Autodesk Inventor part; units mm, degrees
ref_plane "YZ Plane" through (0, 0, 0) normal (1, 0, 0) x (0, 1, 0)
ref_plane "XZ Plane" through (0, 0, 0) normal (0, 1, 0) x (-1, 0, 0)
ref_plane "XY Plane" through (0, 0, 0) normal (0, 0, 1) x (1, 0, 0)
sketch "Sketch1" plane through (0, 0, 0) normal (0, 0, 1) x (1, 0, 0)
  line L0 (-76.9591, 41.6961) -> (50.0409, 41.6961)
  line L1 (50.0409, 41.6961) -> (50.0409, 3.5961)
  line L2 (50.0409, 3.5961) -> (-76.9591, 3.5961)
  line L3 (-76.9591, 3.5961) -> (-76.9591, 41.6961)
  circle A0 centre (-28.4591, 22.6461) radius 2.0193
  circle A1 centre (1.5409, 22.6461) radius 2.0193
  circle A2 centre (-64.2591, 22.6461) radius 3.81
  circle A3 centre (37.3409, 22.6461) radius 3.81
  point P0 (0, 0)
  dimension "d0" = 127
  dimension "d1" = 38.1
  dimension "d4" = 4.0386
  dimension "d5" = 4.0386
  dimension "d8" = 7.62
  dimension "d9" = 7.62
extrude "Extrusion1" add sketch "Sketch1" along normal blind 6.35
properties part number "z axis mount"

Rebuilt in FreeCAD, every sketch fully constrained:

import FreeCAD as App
import Part
import Sketcher

V = App.Vector
Q = App.Units.Quantity


def add_polygon(sketch, points):
    """Adds a closed chain of lines whose ends are joined by coincident constraints."""
    first, n = sketch.GeometryCount, len(points)
    for a, b in zip(points, points[1:] + points[:1]):
        sketch.addGeometry(Part.LineSegment(App.Vector(*a, 0), App.Vector(*b, 0)), False)
    for i in range(n):
        sketch.addConstraint(Sketcher.Constraint("Coincident", first + i, 2, first + (i + 1) % n, 1))

doc = App.newDocument("Part")
body = doc.addObject("PartDesign::Body", "Body")

# Sketch on XY plane
sketch1 = body.newObject("Sketcher::SketchObject", "Sketch")
sketch1.AttachmentSupport = (doc.getObject("XY_Plane"), [""])
sketch1.MapMode = "FlatFace"
add_polygon(sketch1, [(50.0409, 41.6961), (-76.9591, 41.6961), (-76.9591, 3.5961), (50.0409, 3.5961)])  # lines 0-3
sketch1.addGeometry(Part.Circle(V(-64.2591, 22.6461, 0), V(0, 0, 1), 3.81), False)  # 4
sketch1.addGeometry(Part.Circle(V(-28.4591, 22.6461, 0), V(0, 0, 1), 2.0193), False)  # 5
sketch1.addGeometry(Part.Circle(V(1.5409, 22.6461, 0), V(0, 0, 1), 2.0193), False)  # 6
sketch1.addGeometry(Part.Circle(V(37.3409, 22.6461, 0), V(0, 0, 1), 3.81), False)  # 7
sketch1.addConstraint([
    Sketcher.Constraint("Horizontal", 0),
    Sketcher.Constraint("Vertical", 1),
    Sketcher.Constraint("Horizontal", 2),
    Sketcher.Constraint("Vertical", 3),
    Sketcher.Constraint("Equal", 5, 6),
    Sketcher.Constraint("Equal", 4, 7),
    Sketcher.Constraint("Horizontal", 4, 3, 5, 3),
    Sketcher.Constraint("Horizontal", 5, 3, 6, 3),
    Sketcher.Constraint("Horizontal", 6, 3, 7, 3),
    Sketcher.Constraint("Diameter", 4, Q("0.3 in")),
    Sketcher.Constraint("DistanceX", 0, 2, 0, 1, Q("5 in")),
    Sketcher.Constraint("Diameter", 5, Q("0.159 in")),
    Sketcher.Constraint("DistanceY", 1, 2, 1, 1, Q("1.5 in")),
    Sketcher.Constraint("DistanceX", 4, 3, 7, 3, Q("4 in")),
    Sketcher.Constraint("DistanceX", 0, 2, 4, 3, Q("0.5 in")),
    Sketcher.Constraint("DistanceY", 4, 3, 0, 2, Q("0.75 in")),
    Sketcher.Constraint("DistanceX", 5, 3, 6, 3, Q("1.1811 in")),
    Sketcher.Constraint("DistanceX", 4, 3, -1, 1, Q("64.259 mm")),
    Sketcher.Constraint("DistanceY", -1, 1, 4, 3, Q("22.646 mm")),
    Sketcher.Constraint("DistanceX", 5, 3, -1, 1, Q("28.459 mm")),
])
pad1 = body.newObject("PartDesign::Pad", "Pad")
pad1.Profile = sketch1
pad1.Length = Q("0.25 in")

doc.recompute()
